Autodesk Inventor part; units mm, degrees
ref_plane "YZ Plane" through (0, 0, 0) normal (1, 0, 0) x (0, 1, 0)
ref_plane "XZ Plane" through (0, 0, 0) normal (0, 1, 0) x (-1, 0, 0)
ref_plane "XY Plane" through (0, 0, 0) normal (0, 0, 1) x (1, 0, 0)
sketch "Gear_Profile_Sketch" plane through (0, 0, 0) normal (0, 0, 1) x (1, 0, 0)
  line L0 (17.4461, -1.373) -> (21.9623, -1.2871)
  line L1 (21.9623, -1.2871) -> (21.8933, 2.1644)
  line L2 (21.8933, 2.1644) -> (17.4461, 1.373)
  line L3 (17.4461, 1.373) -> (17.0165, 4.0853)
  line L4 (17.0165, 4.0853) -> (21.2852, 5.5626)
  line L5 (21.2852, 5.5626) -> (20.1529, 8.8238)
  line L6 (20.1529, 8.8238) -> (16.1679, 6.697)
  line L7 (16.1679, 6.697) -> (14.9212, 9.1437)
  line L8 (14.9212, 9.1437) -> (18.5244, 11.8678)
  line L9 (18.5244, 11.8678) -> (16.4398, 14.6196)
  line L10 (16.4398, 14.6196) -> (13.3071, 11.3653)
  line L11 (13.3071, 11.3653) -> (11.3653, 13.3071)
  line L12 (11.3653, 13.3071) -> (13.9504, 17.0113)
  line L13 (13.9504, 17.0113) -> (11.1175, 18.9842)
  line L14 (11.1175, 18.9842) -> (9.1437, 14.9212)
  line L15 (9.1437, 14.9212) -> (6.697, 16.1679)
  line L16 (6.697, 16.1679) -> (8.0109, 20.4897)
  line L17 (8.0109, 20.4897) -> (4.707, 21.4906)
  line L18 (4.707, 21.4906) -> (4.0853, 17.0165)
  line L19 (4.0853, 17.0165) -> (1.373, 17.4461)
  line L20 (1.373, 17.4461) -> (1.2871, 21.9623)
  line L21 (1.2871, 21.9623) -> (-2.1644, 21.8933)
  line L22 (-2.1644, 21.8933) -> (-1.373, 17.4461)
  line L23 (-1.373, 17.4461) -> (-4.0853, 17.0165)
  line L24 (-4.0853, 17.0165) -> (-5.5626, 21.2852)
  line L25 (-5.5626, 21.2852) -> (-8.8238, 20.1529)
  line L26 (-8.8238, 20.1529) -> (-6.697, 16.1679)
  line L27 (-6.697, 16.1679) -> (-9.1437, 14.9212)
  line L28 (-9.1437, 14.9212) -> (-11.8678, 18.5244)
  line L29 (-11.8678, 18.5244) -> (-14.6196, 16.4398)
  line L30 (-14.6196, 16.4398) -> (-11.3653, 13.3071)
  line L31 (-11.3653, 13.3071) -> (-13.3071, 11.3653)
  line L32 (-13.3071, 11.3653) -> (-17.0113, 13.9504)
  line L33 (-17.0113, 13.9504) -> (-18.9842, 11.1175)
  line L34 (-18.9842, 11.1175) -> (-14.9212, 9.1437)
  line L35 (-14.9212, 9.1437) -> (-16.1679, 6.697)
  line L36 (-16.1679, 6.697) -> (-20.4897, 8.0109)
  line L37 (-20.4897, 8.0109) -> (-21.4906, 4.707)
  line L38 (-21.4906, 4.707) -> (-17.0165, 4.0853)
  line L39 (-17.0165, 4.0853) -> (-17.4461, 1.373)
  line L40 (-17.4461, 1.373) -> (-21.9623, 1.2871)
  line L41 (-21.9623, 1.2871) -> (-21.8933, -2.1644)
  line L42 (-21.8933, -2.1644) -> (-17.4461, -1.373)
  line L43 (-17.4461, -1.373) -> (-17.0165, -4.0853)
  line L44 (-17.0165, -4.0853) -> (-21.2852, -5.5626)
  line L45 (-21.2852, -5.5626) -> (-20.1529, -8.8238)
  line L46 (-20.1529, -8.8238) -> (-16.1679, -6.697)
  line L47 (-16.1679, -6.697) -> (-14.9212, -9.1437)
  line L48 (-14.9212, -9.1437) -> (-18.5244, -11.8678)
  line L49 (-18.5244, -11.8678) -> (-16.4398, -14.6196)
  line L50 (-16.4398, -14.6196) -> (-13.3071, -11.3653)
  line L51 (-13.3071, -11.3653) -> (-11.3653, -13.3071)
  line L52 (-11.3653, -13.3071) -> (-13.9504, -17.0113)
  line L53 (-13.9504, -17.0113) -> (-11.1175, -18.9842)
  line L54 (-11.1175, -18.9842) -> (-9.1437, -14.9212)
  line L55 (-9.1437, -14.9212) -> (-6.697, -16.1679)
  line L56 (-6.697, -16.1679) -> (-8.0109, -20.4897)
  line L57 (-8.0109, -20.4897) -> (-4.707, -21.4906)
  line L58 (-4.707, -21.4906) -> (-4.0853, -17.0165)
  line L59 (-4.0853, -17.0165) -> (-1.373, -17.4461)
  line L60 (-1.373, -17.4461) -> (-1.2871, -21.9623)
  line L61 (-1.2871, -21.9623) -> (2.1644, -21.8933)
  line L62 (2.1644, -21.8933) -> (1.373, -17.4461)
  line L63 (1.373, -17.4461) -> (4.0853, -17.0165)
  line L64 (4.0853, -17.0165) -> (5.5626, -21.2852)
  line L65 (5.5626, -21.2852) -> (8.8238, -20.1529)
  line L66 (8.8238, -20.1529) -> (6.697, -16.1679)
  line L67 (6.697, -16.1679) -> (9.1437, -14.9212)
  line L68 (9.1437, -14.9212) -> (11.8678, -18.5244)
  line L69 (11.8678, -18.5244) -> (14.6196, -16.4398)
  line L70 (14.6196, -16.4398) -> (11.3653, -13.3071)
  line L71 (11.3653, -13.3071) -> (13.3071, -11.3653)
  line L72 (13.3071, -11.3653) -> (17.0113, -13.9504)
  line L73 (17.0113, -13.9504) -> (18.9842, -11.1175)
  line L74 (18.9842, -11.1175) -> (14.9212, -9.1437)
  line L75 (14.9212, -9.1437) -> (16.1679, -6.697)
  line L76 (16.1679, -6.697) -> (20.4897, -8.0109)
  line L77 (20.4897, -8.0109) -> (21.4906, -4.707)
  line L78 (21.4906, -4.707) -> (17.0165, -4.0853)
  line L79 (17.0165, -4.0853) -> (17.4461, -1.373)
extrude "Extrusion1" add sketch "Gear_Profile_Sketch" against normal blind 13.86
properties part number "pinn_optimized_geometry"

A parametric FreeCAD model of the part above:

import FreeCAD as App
import Part
import Sketcher
Q = App.Units.Quantity


def add_polygon(sketch, points):
    """Adds a closed chain of lines whose ends are joined by coincident constraints."""
    first, n = sketch.GeometryCount, len(points)
    for a, b in zip(points, points[1:] + points[:1]):
        sketch.addGeometry(Part.LineSegment(App.Vector(*a, 0), App.Vector(*b, 0)), False)
    for i in range(n):
        sketch.addConstraint(Sketcher.Constraint("Coincident", first + i, 2, first + (i + 1) % n, 1))

doc = App.newDocument("Part")
body = doc.addObject("PartDesign::Body", "Body")

# Sketch on XY plane
sketch1 = body.newObject("Sketcher::SketchObject", "Sketch")
sketch1.AttachmentSupport = (doc.getObject("XY_Plane"), [""])
sketch1.MapMode = "FlatFace"
add_polygon(sketch1, [(17, -4.1), (17.4, -1.4), (22, -1.3), (21.9, 2.2), (17.4, 1.4), (17, 4.1), (21.3, 5.6), (20.2, 8.8), (16.2, 6.7), (14.9, 9.1), (18.5, 11.9), (16.4, 14.6), (13.3, 11.4), (11.4, 13.3), (14, 17), (11.1, 19), (9.1, 14.9), (6.7, 16.2), (8, 20.5), (4.7, 21.5), (4.1, 17), (1.4, 17.4), (1.3, 22), (-2.2, 21.9), (-1.4, 17.4), (-4.1, 17), (-5.6, 21.3), (-8.8, 20.2), (-6.7, 16.2), (-9.1, 14.9), (-11.9, 18.5), (-14.6, 16.4), (-11.4, 13.3), (-13.3, 11.4), (-17, 14), (-19, 11.1), (-14.9, 9.1), (-16.2, 6.7), (-20.5, 8), (-21.5, 4.7), (-17, 4.1), (-17.4, 1.4), (-22, 1.3), (-21.9, -2.2), (-17.4, -1.4), (-17, -4.1), (-21.3, -5.6), (-20.2, -8.8), (-16.2, -6.7), (-14.9, -9.1), (-18.5, -11.9), (-16.4, -14.6), (-13.3, -11.4), (-11.4, -13.3), (-14, -17), (-11.1, -19), (-9.1, -14.9), (-6.7, -16.2), (-8, -20.5), (-4.7, -21.5), (-4.1, -17), (-1.4, -17.4), (-1.3, -22), (2.2, -21.9), (1.4, -17.4), (4.1, -17), (5.6, -21.3), (8.8, -20.2), (6.7, -16.2), (9.1, -14.9), (11.9, -18.5), (14.6, -16.4), (11.4, -13.3), (13.3, -11.4), (17, -14), (19, -11.1), (14.9, -9.1), (16.2, -6.7), (20.5, -8), (21.5, -4.7)])  # lines 0-79
sketch1.addConstraint(Sketcher.Constraint("Symmetric", 0, 2, 40, 2, -1, 1))
sketch1.addConstraint(Sketcher.Constraint("Symmetric", 1, 2, 41, 2, -1, 1))
sketch1.addConstraint(Sketcher.Constraint("Symmetric", 2, 2, 42, 2, -1, 1))
sketch1.addConstraint(Sketcher.Constraint("Symmetric", 3, 2, 43, 2, -1, 1))
sketch1.addConstraint(Sketcher.Constraint("Symmetric", 4, 2, 44, 2, -1, 1))
sketch1.addConstraint(Sketcher.Constraint("Symmetric", 5, 2, 45, 2, -1, 1))
sketch1.addConstraint(Sketcher.Constraint("Symmetric", 6, 2, 46, 2, -1, 1))
sketch1.addConstraint(Sketcher.Constraint("Symmetric", 7, 2, 47, 2, -1, 1))
sketch1.addConstraint(Sketcher.Constraint("Symmetric", 8, 2, 48, 2, -1, 1))
sketch1.addConstraint(Sketcher.Constraint("Symmetric", 9, 2, 49, 2, -1, 1))
sketch1.addConstraint(Sketcher.Constraint("Symmetric", 10, 2, 50, 2, -1, 1))
sketch1.addConstraint(Sketcher.Constraint("Symmetric", 11, 2, 51, 2, -1, 1))
sketch1.addConstraint(Sketcher.Constraint("Symmetric", 12, 2, 52, 2, -1, 1))
sketch1.addConstraint(Sketcher.Constraint("Symmetric", 13, 2, 53, 2, -1, 1))
sketch1.addConstraint(Sketcher.Constraint("Symmetric", 14, 2, 54, 2, -1, 1))
sketch1.addConstraint(Sketcher.Constraint("Symmetric", 15, 2, 55, 2, -1, 1))
sketch1.addConstraint(Sketcher.Constraint("Symmetric", 16, 2, 56, 2, -1, 1))
sketch1.addConstraint(Sketcher.Constraint("Symmetric", 17, 2, 57, 2, -1, 1))
sketch1.addConstraint(Sketcher.Constraint("Symmetric", 18, 2, 58, 2, -1, 1))
sketch1.addConstraint(Sketcher.Constraint("Symmetric", 19, 2, 59, 2, -1, 1))
sketch1.addConstraint(Sketcher.Constraint("Symmetric", 20, 2, 60, 2, -1, 1))
sketch1.addConstraint(Sketcher.Constraint("Symmetric", 21, 2, 61, 2, -1, 1))
sketch1.addConstraint(Sketcher.Constraint("Symmetric", 22, 2, 62, 2, -1, 1))
sketch1.addConstraint(Sketcher.Constraint("Symmetric", 23, 2, 63, 2, -1, 1))
sketch1.addConstraint(Sketcher.Constraint("Symmetric", 24, 2, 64, 2, -1, 1))
sketch1.addConstraint(Sketcher.Constraint("Symmetric", 25, 2, 65, 2, -1, 1))
sketch1.addConstraint(Sketcher.Constraint("Symmetric", 26, 2, 66, 2, -1, 1))
sketch1.addConstraint(Sketcher.Constraint("Symmetric", 27, 2, 67, 2, -1, 1))
sketch1.addConstraint(Sketcher.Constraint("Symmetric", 28, 2, 68, 2, -1, 1))
sketch1.addConstraint(Sketcher.Constraint("Symmetric", 29, 2, 69, 2, -1, 1))
sketch1.addConstraint(Sketcher.Constraint("Symmetric", 30, 2, 70, 2, -1, 1))
sketch1.addConstraint(Sketcher.Constraint("Symmetric", 31, 2, 71, 2, -1, 1))
sketch1.addConstraint(Sketcher.Constraint("Symmetric", 32, 2, 72, 2, -1, 1))
sketch1.addConstraint(Sketcher.Constraint("Symmetric", 33, 2, 73, 2, -1, 1))
sketch1.addConstraint(Sketcher.Constraint("Symmetric", 34, 2, 74, 2, -1, 1))
sketch1.addConstraint(Sketcher.Constraint("Symmetric", 35, 2, 75, 2, -1, 1))
sketch1.addConstraint(Sketcher.Constraint("Symmetric", 36, 2, 76, 2, -1, 1))
sketch1.addConstraint(Sketcher.Constraint("Symmetric", 37, 2, 77, 2, -1, 1))
sketch1.addConstraint(Sketcher.Constraint("Symmetric", 38, 2, 78, 2, -1, 1))
sketch1.addConstraint(Sketcher.Constraint("Symmetric", 39, 2, 79, 2, -1, 1))
sketch1.addConstraint(Sketcher.Constraint("Symmetric", 20, 2, 23, 2, -2))
sketch1.addConstraint(Sketcher.Constraint("Symmetric", 19, 2, 24, 2, -2))
sketch1.addConstraint(Sketcher.Constraint("Symmetric", 16, 2, 27, 2, -2))
sketch1.addConstraint(Sketcher.Constraint("Symmetric", 15, 2, 28, 2, -2))
sketch1.addConstraint(Sketcher.Constraint("Symmetric", 12, 2, 31, 2, -2))
sketch1.addConstraint(Sketcher.Constraint("Symmetric", 11, 2, 32, 2, -2))
sketch1.addConstraint(Sketcher.Constraint("Symmetric", 8, 2, 35, 2, -2))
sketch1.addConstraint(Sketcher.Constraint("Symmetric", 7, 2, 36, 2, -2))
sketch1.addConstraint(Sketcher.Constraint("Symmetric", 4, 2, 39, 2, -2))
sketch1.addConstraint(Sketcher.Constraint("Symmetric", 3, 2, 40, 2, -2))
sketch1.addConstraint(Sketcher.Constraint("Perpendicular", 0, 20))
sketch1.addConstraint(Sketcher.Constraint("Perpendicular", 1, 21))
sketch1.addConstraint(Sketcher.Constraint("Perpendicular", 2, 22))
sketch1.addConstraint(Sketcher.Constraint("Perpendicular", 3, 23))
sketch1.addConstraint(Sketcher.Constraint("Perpendicular", 5, 25))
sketch1.addConstraint(Sketcher.Constraint("Perpendicular", 6, 26))
sketch1.addConstraint(Sketcher.Constraint("Perpendicular", 7, 27))
sketch1.addConstraint(Sketcher.Constraint("Perpendicular", 8, 28))
sketch1.addConstraint(Sketcher.Constraint("Perpendicular", 9, 29))
sketch1.addConstraint(Sketcher.Constraint("Perpendicular", 10, 30))
sketch1.addConstraint(Sketcher.Constraint("Perpendicular", 11, 31))
sketch1.addConstraint(Sketcher.Constraint("Perpendicular", 12, 32))
sketch1.addConstraint(Sketcher.Constraint("Perpendicular", 13, 33))
sketch1.addConstraint(Sketcher.Constraint("Perpendicular", 14, 34))
sketch1.addConstraint(Sketcher.Constraint("Perpendicular", 15, 35))
sketch1.addConstraint(Sketcher.Constraint("Perpendicular", 17, 37))
sketch1.addConstraint(Sketcher.Constraint("Perpendicular", 18, 38))
sketch1.addConstraint(Sketcher.Constraint("Perpendicular", 19, 39))
sketch1.addConstraint(Sketcher.Constraint("Equal", 1, 3))
sketch1.addConstraint(Sketcher.Constraint("Equal", 3, 5))
sketch1.addConstraint(Sketcher.Constraint("Equal", 2, 6))
sketch1.addConstraint(Sketcher.Constraint("Equal", 5, 7))
sketch1.addConstraint(Sketcher.Constraint("Equal", 4, 8))
sketch1.addConstraint(Sketcher.Constraint("Equal", 7, 9))
sketch1.addConstraint(Sketcher.Constraint("Equal", 6, 10))
sketch1.addConstraint(Sketcher.Constraint("Equal", 9, 11))
sketch1.addConstraint(Sketcher.Constraint("Equal", 8, 12))
sketch1.addConstraint(Sketcher.Constraint("Equal", 11, 13))
sketch1.addConstraint(Sketcher.Constraint("Equal", 10, 14))
sketch1.addConstraint(Sketcher.Constraint("Equal", 13, 15))
sketch1.addConstraint(Sketcher.Constraint("Equal", 12, 16))
sketch1.addConstraint(Sketcher.Constraint("Equal", 15, 17))
sketch1.addConstraint(Sketcher.Constraint("Equal", 14, 18))
sketch1.addConstraint(Sketcher.Constraint("Equal", 17, 19))
sketch1.addConstraint(Sketcher.Constraint("Equal", 16, 20))
sketch1.addConstraint(Sketcher.Constraint("Equal", 19, 21))
sketch1.addConstraint(Sketcher.Constraint("Equal", 18, 22))
sketch1.addConstraint(Sketcher.Constraint("Equal", 23, 25))
sketch1.addConstraint(Sketcher.Constraint("Equal", 22, 26))
sketch1.addConstraint(Sketcher.Constraint("Equal", 25, 27))
sketch1.addConstraint(Sketcher.Constraint("Equal", 27, 29))
sketch1.addConstraint(Sketcher.Constraint("Equal", 26, 30))
sketch1.addConstraint(Sketcher.Constraint("Equal", 29, 31))
sketch1.addConstraint(Sketcher.Constraint("Equal", 31, 33))
sketch1.addConstraint(Sketcher.Constraint("Equal", 35, 37))
sketch1.addConstraint(Sketcher.Constraint("Angle", 0, Q("80.9997 deg")))
sketch1.addConstraint(Sketcher.Constraint("Angle", 8, Q("117.0008 deg")))
sketch1.addConstraint(Sketcher.Constraint("Angle", 1, Q("1.0897 deg")))
sketch1.addConstraint(Sketcher.Constraint("Angle", 3, Q("-169.9096 deg")))
sketch1.addConstraint(Sketcher.Constraint("Angle", 5, Q("19.0896 deg")))
sketch1.addConstraint(Sketcher.Constraint("Angle", 7, Q("-151.911 deg")))
sketch1.addConstraint(Sketcher.Constraint("Angle", 9, Q("37.09 deg")))
sketch1.addConstraint(Sketcher.Constraint("Angle", 11, Q("-133.9093 deg")))
sketch1.addConstraint(Sketcher.Constraint("Angle", 13, Q("55.0894 deg")))
sketch1.addConstraint(Sketcher.Constraint("Angle", 15, Q("-115.9104 deg")))
sketch1.addConstraint(Sketcher.Constraint("Angle", 17, Q("73.0898 deg")))
sketch1.addConstraint(Sketcher.Constraint("Angle", 19, Q("-97.911 deg")))
sketch1.addConstraint(Sketcher.Constraint("Distance", 0, 2.746))
sketch1.addConstraint(Sketcher.Constraint("Distance", 1, 4.517))
sketch1.addConstraint(Sketcher.Constraint("DistanceX", -1, 1, 0, 2, 17.446))
pad1 = body.newObject("PartDesign::Pad", "Pad")
pad1.Profile = sketch1
pad1.Length = 13.86
pad1.Reversed = True

doc.recompute()
